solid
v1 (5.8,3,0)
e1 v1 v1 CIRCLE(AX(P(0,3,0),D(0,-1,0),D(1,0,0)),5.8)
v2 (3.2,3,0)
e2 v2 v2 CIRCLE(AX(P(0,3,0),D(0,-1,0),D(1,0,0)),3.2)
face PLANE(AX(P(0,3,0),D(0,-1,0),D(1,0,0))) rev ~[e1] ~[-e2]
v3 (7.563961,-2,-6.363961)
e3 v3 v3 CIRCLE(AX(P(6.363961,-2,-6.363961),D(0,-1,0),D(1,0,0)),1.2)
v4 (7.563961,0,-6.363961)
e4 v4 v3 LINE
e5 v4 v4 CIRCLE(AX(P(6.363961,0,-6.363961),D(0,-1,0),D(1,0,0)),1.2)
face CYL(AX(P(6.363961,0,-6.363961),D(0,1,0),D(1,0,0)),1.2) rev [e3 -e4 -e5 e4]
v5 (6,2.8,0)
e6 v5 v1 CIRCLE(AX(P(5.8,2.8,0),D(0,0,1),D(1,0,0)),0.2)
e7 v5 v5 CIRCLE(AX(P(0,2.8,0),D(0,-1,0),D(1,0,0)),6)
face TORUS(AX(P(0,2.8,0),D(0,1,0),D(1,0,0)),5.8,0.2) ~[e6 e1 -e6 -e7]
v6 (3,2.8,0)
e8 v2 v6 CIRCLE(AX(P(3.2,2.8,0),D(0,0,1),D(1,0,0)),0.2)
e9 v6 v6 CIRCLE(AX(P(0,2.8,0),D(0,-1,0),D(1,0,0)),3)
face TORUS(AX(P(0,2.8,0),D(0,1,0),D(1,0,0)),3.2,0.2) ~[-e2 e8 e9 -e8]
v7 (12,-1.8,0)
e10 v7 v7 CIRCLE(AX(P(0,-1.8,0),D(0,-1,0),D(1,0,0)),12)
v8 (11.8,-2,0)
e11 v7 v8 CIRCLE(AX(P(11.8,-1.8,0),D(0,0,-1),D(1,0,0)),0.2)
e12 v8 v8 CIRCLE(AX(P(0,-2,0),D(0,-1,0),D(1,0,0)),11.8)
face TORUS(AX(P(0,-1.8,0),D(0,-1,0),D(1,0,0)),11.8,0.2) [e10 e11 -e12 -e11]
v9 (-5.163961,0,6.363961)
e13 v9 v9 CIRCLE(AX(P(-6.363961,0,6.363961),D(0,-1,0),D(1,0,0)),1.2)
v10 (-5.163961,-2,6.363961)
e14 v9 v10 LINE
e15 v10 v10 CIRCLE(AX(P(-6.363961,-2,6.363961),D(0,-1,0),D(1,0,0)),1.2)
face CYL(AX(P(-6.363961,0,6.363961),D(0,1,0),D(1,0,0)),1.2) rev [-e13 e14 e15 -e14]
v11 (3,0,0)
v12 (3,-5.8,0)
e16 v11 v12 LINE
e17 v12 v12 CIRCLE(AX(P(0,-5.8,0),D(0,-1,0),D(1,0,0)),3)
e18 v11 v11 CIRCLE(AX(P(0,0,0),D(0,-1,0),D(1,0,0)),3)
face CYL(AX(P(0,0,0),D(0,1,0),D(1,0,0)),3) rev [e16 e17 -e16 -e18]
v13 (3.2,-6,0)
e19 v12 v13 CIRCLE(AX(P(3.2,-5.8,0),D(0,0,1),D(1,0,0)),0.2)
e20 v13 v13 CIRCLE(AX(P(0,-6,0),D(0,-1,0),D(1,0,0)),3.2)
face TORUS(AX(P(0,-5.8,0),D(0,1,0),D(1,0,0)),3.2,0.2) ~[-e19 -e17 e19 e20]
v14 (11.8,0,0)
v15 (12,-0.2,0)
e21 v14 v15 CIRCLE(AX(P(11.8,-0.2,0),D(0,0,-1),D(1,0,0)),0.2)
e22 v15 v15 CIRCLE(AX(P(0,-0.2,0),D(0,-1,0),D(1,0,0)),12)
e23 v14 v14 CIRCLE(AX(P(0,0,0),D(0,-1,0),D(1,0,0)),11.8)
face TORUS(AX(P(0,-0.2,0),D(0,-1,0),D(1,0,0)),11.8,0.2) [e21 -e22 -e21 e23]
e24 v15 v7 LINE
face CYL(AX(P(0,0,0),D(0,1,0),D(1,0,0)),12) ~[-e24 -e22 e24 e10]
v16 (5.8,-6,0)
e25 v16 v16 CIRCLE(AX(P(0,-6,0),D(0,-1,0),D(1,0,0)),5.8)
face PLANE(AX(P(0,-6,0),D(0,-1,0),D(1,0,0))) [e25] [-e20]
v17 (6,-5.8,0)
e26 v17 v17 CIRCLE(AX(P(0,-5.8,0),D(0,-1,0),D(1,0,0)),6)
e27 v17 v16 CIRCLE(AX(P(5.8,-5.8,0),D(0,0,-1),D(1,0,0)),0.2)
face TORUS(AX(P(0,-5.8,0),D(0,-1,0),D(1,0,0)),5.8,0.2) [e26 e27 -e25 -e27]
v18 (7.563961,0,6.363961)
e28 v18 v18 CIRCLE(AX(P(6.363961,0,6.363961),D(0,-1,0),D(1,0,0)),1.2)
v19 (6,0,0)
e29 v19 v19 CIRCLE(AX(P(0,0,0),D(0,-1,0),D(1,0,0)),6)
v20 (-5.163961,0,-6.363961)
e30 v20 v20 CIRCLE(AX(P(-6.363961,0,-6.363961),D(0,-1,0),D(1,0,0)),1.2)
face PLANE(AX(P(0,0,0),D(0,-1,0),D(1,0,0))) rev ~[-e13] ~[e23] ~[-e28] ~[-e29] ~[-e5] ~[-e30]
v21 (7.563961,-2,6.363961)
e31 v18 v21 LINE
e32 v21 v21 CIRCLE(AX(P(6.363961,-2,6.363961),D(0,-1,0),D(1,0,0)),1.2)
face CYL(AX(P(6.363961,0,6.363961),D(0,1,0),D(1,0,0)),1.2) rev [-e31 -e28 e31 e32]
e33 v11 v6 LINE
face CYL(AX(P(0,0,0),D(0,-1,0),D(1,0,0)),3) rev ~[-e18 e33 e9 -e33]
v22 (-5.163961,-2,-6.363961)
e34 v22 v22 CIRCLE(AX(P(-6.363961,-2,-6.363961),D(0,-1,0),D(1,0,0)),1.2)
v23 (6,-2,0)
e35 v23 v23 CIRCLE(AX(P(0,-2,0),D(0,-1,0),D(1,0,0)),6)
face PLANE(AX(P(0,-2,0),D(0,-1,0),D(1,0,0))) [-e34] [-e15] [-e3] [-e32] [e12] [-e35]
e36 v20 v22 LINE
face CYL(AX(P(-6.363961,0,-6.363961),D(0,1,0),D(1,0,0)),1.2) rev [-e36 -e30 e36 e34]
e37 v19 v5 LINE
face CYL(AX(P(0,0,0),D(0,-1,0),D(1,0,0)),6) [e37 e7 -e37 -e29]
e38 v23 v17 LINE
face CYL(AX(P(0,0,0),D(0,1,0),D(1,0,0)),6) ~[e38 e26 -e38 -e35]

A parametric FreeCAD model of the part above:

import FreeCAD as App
import Part
import Sketcher
from FreeCAD import Vector
Q = App.Units.Quantity


def edges_at(feature, points):
    """Names of the edges that pass closest to the given points."""
    edges = feature.Shape.Edges
    near = lambda p: min(range(len(edges)), key=lambda i: edges[i].distToShape(Part.Vertex(*p))[0])
    return sorted({f"Edge{near(p) + 1}" for p in points})

doc = App.newDocument("Part")
body = doc.addObject("PartDesign::Body", "Body")

# Sketch on XZ plane
sketch1 = doc.addObject("Sketcher::SketchObject", "Sketch")
body.addObject(sketch1)
sketch1.AttachmentSupport = (doc.XZ_Plane, [""])
sketch1.MapMode = "FlatFace"
sketch1.addGeometry([
    Part.Circle(Vector(0, 0, 0), Vector(0, 0, 1), 12),  # 0
    Part.Circle(Vector(-6.4, -6.4, 0), Vector(0, 0, 1), 1.2),  # 1
    Part.Circle(Vector(6.4, -6.4, 0), Vector(0, 0, 1), 1.2),  # 2
    Part.Circle(Vector(-6.4, 6.4, 0), Vector(0, 0, 1), 1.2),  # 3
    Part.Circle(Vector(0, 0, 0), Vector(0, 0, 1), 6),  # 4
    Part.Circle(Vector(6.4, 6.4, 0), Vector(0, 0, 1), 1.2),  # 5
], False)
sketch1.addConstraint([
    Sketcher.Constraint("Coincident", 0, 3, -1, 1),
    Sketcher.Constraint("Coincident", 4, 3, -1, 1),
    Sketcher.Constraint("Equal", 1, 2),
    Sketcher.Constraint("Equal", 2, 3),
    Sketcher.Constraint("Equal", 3, 5),
    Sketcher.Constraint("Symmetric", 2, 3, 3, 3, -1, 1),
    Sketcher.Constraint("Symmetric", 1, 3, 5, 3, -1, 1),
    Sketcher.Constraint("Symmetric", 1, 3, 2, 3, -2),
    Sketcher.Constraint("Diameter", 0, Q("24 mm")),
    Sketcher.Constraint("Diameter", 4, Q("12 mm")),
    Sketcher.Constraint("Diameter", 1, Q("2.4 mm")),
    Sketcher.Constraint("DistanceX", 1, 3, -1, 1, Q("6.363961 mm")),
    Sketcher.Constraint("DistanceY", 1, 3, -1, 1, Q("6.363961 mm")),
])
pad1 = doc.addObject("PartDesign::Pad", "Pad")
body.addObject(pad1)
pad1.Profile = sketch1
pad1.Length = 2

# Sketch on XZ plane
sketch2 = doc.addObject("Sketcher::SketchObject", "Sketch001")
body.addObject(sketch2)
sketch2.AttachmentSupport = (doc.XZ_Plane, [""])
sketch2.MapMode = "FlatFace"
sketch2.addGeometry([
    Part.Circle(Vector(0, 0, 0), Vector(0, 0, 1), 6),
    Part.Circle(Vector(0, 0, 0), Vector(0, 0, 1), 3),
], False)
sketch2.addConstraint([
    Sketcher.Constraint("Coincident", 0, 3, -1, 1),
    Sketcher.Constraint("Coincident", 1, 3, -1, 1),
    Sketcher.Constraint("Diameter", 0, Q("12 mm")),
    Sketcher.Constraint("Diameter", 1, Q("6 mm")),
])
pad2 = doc.addObject("PartDesign::Pad", "Pad001")
body.addObject(pad2)
pad2.Profile = sketch2
pad2.Length = 6

# Sketch on XZ plane
sketch3 = doc.addObject("Sketcher::SketchObject", "Sketch002")
body.addObject(sketch3)
sketch3.AttachmentSupport = (doc.XZ_Plane, [""])
sketch3.MapMode = "FlatFace"
sketch3.addGeometry([
    Part.Circle(Vector(0, 0, 0), Vector(0, 0, 1), 6),
    Part.Circle(Vector(0, 0, 0), Vector(0, 0, 1), 3),
], False)
sketch3.addConstraint([
    Sketcher.Constraint("Coincident", 0, 3, -1, 1),
    Sketcher.Constraint("Coincident", 1, 3, -1, 1),
    Sketcher.Constraint("Diameter", 0, Q("12 mm")),
    Sketcher.Constraint("Diameter", 1, Q("6 mm")),
])
pad3 = doc.addObject("PartDesign::Pad", "Pad002")
body.addObject(pad3)
pad3.Profile = sketch3
pad3.Length = 3
pad3.Reversed = True
doc.recompute()

fillet = doc.addObject("PartDesign::Fillet", "Fillet")
body.addObject(fillet)
fillet.Base = (pad3, edges_at(pad3, [
    (-6, -6, 0),
    (-3, -6, 0),
    (-12, -2, 0),
    (-12, 0, 0),
    (-6, 3, 0),
    (-3, 3, 0),
]))
fillet.Radius = 0.2

doc.recompute()
